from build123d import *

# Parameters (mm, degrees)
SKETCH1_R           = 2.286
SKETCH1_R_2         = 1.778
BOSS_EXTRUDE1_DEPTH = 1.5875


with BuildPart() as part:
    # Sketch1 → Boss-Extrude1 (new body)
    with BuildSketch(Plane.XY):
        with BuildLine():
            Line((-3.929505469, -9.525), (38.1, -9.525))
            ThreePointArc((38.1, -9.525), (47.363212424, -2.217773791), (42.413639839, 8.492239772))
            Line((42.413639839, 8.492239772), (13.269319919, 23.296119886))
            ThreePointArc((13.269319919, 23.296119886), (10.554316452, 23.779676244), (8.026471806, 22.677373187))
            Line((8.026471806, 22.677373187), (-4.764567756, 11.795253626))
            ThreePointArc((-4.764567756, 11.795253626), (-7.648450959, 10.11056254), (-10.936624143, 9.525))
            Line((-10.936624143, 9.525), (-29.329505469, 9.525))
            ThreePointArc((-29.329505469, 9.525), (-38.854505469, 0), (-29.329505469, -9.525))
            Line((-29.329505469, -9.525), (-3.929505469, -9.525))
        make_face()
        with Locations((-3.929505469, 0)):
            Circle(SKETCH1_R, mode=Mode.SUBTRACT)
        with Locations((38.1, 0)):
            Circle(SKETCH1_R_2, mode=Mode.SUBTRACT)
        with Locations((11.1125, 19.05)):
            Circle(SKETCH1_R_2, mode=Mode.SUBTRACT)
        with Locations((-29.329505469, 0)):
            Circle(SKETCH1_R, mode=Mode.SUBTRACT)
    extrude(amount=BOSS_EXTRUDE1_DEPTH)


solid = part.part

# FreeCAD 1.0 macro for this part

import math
import FreeCAD as App
import Part
import Sketcher
from FreeCAD import Vector
Q = App.Units.Quantity

doc = App.newDocument("Part")
params = doc.addObject("Spreadsheet::Sheet", "Params")
for row, (alias, value) in enumerate([
    ("sketch1_diameter", "0.18 in"),
    ("sketch1_diameter2", "0.14 in"),
    ("sketch1_radius", "0.375 in"),
    ("sketch1_radius2", "0.1875 in"),
    ("pad1_length", "0.0625 in"),
], start=1):
    params.set(f"A{row}", alias)
    params.set(f"B{row}", "=" + value)
    params.setAlias(f"B{row}", alias)

body = doc.addObject("PartDesign::Body", "Body")

# Sketch on XY plane
sketch1 = body.newObject("Sketcher::SketchObject", "Sketch")
sketch1.AttachmentSupport = (doc.getObject("XY_Plane"), [""])
sketch1.MapMode = "FlatFace"
sketch1.addGeometry(Part.ArcOfCircle(Part.Circle(Vector(38.1, 0, 0), Vector(0, 0, 1), 9.5), math.radians(-90), math.radians(63)), False)
sketch1.addGeometry(Part.LineSegment(Vector(42.4, 8.5, 0), Vector(13.3, 23.3, 0)), False)
sketch1.addGeometry(Part.ArcOfCircle(Part.Circle(Vector(11.1, 19, 0), Vector(0, 0, 1), 4.8), math.radians(63), math.radians(130)), False)
sketch1.addGeometry(Part.LineSegment(Vector(8, 22.7, 0), Vector(-4.8, 11.8, 0)), False)
sketch1.addGeometry(Part.ArcOfCircle(Part.Circle(Vector(-10.9, 19.1, 0), Vector(0, 0, 1), 9.5), math.radians(-90), math.radians(-50)), False)
sketch1.addGeometry(Part.LineSegment(Vector(-10.9, 9.5, 0), Vector(-29.3, 9.5, 0)), False)
sketch1.addGeometry(Part.ArcOfCircle(Part.Circle(Vector(-29.3, 0, 0), Vector(0, 0, 1), 9.5), math.radians(90), math.radians(270)), False)
sketch1.addGeometry(Part.LineSegment(Vector(-29.3, -9.5, 0), Vector(38.1, -9.5, 0)), False)
sketch1.addGeometry(Part.Circle(Vector(-29.3, 0, 0), Vector(0, 0, 1), 2.3), False)
sketch1.addGeometry(Part.Circle(Vector(-3.9, 0, 0), Vector(0, 0, 1), 2.3), False)
sketch1.addGeometry(Part.Circle(Vector(38.1, 0, 0), Vector(0, 0, 1), 1.8), False)
sketch1.addGeometry(Part.Circle(Vector(11.1, 19.1, 0), Vector(0, 0, 1), 1.8), False)
sketch1.addConstraint(Sketcher.Constraint("Tangent", 0, 2, 1, 1))
sketch1.addConstraint(Sketcher.Constraint("Tangent", 1, 2, 2, 1))
sketch1.addConstraint(Sketcher.Constraint("Tangent", 2, 2, 3, 1))
sketch1.addConstraint(Sketcher.Constraint("Tangent", 3, 2, 4, 2))
sketch1.addConstraint(Sketcher.Constraint("Tangent", 4, 1, 5, 1))
sketch1.addConstraint(Sketcher.Constraint("Tangent", 5, 2, 6, 1))
sketch1.addConstraint(Sketcher.Constraint("Tangent", 6, 2, 7, 1))
sketch1.addConstraint(Sketcher.Constraint("Tangent", 7, 2, 0, 1))
sketch1.addConstraint(Sketcher.Constraint("Horizontal", 5))
sketch1.addConstraint(Sketcher.Constraint("Horizontal", 7))
sketch1.addConstraint(Sketcher.Constraint("Coincident", 8, 3, 6, 3))
sketch1.addConstraint(Sketcher.Constraint("Coincident", 10, 3, 0, 3))
sketch1.addConstraint(Sketcher.Constraint("Coincident", 11, 3, 2, 3))
sketch1.addConstraint(Sketcher.Constraint("Equal", 0, 4))
sketch1.addConstraint(Sketcher.Constraint("Equal", 4, 6))
sketch1.addConstraint(Sketcher.Constraint("Equal", 8, 9))
sketch1.addConstraint(Sketcher.Constraint("Equal", 10, 11))
sketch1.addConstraint(Sketcher.Constraint("PointOnObject", 0, 3, -1))
sketch1.addConstraint(Sketcher.Constraint("PointOnObject", 9, 3, -1))
sketch1.addConstraint(Sketcher.Constraint("Horizontal", 2, 3, 4, 3))
sketch1.addConstraint(Sketcher.Constraint("Diameter", 8, Q("0.18 in")))
sketch1.addConstraint(Sketcher.Constraint("Diameter", 10, Q("0.14 in")))
sketch1.addConstraint(Sketcher.Constraint("Radius", 0, Q("0.375 in")))
sketch1.addConstraint(Sketcher.Constraint("Radius", 2, Q("0.1875 in")))
sketch1.addConstraint(Sketcher.Constraint("DistanceX", 6, 3, 9, 3, Q("1 in")))
sketch1.addConstraint(Sketcher.Constraint("DistanceX", -1, 1, 0, 3, Q("1.5 in")))
sketch1.addConstraint(Sketcher.Constraint("DistanceX", -1, 1, 2, 3, Q("0.4375 in")))
sketch1.addConstraint(Sketcher.Constraint("DistanceX", 5, 2, 5, 1, 18.392881))
sketch1.addConstraint(Sketcher.Constraint("DistanceX", 7, 1, 7, 2, 67.429505))
sketch1.setExpression("Constraints[20]", "Params.sketch1_diameter")
sketch1.setExpression("Constraints[21]", "Params.sketch1_diameter2")
sketch1.setExpression("Constraints[22]", "Params.sketch1_radius")
sketch1.setExpression("Constraints[23]", "Params.sketch1_radius2")
pad1 = body.newObject("PartDesign::Pad", "Pad")
pad1.Profile = sketch1
pad1.setExpression("Length", "Params.pad1_length")

doc.recompute()
